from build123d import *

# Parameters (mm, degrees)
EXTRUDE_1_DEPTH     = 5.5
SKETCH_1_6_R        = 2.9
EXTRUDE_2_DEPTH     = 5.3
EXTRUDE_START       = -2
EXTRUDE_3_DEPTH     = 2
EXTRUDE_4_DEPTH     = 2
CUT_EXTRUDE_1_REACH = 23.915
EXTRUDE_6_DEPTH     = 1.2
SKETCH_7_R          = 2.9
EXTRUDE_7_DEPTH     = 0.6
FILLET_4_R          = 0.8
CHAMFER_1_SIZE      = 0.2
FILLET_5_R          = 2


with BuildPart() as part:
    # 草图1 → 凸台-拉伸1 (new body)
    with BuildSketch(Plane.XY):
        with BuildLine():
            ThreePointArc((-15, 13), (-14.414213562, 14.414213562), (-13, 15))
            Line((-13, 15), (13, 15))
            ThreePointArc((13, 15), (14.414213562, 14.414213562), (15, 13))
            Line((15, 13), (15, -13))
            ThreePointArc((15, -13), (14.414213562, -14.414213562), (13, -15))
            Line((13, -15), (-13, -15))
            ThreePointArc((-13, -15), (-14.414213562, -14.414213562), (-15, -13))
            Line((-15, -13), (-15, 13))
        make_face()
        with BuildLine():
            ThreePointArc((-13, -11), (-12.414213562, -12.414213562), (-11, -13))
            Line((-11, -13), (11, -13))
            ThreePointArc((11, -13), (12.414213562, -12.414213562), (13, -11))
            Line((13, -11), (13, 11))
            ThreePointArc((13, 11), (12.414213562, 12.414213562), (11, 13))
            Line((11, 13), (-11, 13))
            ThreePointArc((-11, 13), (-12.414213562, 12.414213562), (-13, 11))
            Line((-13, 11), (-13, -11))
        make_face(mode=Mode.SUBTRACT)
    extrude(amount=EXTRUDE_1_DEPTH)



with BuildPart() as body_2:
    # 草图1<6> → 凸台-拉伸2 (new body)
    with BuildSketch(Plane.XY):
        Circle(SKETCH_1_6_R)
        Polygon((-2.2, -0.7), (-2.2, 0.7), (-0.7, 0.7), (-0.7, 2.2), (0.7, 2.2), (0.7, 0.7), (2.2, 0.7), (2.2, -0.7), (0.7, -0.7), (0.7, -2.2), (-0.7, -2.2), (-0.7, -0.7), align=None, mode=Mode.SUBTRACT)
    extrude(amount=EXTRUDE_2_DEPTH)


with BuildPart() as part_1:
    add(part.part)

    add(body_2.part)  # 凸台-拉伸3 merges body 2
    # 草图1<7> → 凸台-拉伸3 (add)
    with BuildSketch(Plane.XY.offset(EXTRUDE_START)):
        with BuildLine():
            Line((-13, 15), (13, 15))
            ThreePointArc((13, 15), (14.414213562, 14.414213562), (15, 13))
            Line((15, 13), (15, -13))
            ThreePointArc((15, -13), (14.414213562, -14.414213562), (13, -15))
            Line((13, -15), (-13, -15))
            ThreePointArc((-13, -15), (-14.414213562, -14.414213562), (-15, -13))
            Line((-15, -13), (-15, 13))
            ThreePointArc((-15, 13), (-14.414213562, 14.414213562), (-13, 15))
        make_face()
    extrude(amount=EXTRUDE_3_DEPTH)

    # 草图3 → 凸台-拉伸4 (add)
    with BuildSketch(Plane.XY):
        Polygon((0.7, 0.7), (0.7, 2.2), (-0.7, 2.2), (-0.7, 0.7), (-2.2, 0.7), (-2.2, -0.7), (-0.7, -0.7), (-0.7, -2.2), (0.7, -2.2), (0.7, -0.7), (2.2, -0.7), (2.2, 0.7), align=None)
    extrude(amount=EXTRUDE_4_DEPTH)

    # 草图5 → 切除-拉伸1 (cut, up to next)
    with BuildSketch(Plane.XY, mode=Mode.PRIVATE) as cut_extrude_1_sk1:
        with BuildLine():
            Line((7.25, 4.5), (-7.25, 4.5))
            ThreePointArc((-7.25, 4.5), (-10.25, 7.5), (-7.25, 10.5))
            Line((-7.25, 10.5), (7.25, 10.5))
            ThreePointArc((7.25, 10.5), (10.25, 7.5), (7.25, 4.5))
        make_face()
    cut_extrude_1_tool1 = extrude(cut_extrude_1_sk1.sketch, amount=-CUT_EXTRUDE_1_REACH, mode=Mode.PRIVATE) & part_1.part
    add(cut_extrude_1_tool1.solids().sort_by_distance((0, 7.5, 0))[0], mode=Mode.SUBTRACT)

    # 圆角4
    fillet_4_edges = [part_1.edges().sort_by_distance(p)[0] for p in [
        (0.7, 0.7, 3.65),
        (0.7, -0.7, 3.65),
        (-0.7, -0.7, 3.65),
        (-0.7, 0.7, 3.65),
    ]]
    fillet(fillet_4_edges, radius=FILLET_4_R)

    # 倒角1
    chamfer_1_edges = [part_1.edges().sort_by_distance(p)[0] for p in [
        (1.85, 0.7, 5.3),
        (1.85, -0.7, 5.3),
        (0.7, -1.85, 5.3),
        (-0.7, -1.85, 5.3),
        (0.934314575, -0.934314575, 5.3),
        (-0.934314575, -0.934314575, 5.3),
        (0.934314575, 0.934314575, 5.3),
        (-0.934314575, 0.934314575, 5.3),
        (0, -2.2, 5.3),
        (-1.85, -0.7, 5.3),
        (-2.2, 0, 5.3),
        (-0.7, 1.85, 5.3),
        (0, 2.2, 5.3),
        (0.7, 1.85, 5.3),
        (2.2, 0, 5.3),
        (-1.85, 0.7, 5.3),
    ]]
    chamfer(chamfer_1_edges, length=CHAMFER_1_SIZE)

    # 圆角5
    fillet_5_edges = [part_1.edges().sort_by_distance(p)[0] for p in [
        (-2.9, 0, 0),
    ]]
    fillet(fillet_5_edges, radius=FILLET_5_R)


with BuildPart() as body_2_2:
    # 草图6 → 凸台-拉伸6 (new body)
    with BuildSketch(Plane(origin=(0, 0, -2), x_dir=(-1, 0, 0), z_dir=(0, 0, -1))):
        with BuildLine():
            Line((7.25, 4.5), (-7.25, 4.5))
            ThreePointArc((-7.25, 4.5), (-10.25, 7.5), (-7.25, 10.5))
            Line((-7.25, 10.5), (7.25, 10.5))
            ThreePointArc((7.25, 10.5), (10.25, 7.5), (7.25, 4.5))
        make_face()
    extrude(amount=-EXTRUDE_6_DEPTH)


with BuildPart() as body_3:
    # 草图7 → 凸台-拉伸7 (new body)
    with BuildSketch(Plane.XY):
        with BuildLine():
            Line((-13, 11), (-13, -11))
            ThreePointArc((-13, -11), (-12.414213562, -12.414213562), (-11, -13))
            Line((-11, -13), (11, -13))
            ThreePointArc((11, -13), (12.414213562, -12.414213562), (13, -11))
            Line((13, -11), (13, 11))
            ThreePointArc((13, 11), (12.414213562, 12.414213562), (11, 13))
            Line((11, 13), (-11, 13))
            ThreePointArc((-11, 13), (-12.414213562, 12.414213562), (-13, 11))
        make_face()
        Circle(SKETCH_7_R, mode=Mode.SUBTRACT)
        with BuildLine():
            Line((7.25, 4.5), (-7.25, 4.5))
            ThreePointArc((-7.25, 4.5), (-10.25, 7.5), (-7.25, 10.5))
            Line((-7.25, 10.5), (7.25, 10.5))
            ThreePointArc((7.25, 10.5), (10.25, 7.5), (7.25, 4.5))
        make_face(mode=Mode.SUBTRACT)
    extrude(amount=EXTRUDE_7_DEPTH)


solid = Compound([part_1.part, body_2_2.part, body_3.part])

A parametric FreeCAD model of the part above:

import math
import FreeCAD as App
import Part
import Sketcher
from FreeCAD import Vector


def edges_at(feature, points):
    """Names of the edges that pass closest to the given points."""
    edges = feature.Shape.Edges
    near = lambda p: min(range(len(edges)), key=lambda i: edges[i].distToShape(Part.Vertex(*p))[0])
    return sorted({f"Edge{near(p) + 1}" for p in points})


def add_polygon(sketch, points):
    """Adds a closed chain of lines whose ends are joined by coincident constraints."""
    first, n = sketch.GeometryCount, len(points)
    for a, b in zip(points, points[1:] + points[:1]):
        sketch.addGeometry(Part.LineSegment(App.Vector(*a, 0), App.Vector(*b, 0)), False)
    for i in range(n):
        sketch.addConstraint(Sketcher.Constraint("Coincident", first + i, 2, first + (i + 1) % n, 1))

doc = App.newDocument("Part")
params = doc.addObject("Spreadsheet::Sheet", "Params")
for row, (alias, value) in enumerate([
    ("sketch1_radius", "2 mm"),
    ("sketch1_width", "26 mm"),
    ("pad1_length", "5.5 mm"),
    ("sketch2_diameter", "5.8 mm"),
    ("sketch2_width", "1.5 mm"),
    ("sketch2_width2", "1.4 mm"),
    ("pad2_length", "5.3 mm"),
    ("sketch3_radius", "2 mm"),
    ("sketch3_width", "26 mm"),
    ("pad3_length", "2 mm"),
    ("sketch4_width", "1.4 mm"),
    ("sketch4_width2", "1.5 mm"),
    ("pad4_length", "2 mm"),
    ("sketch5_radius", "3 mm"),
    ("sketch5_width", "14.5 mm"),
    ("fillet_radius", "0.8 mm"),
    ("chamfer_size", "0.2 mm"),
    ("fillet2_radius", "2 mm"),
    ("sketch6_radius", "3 mm"),
    ("sketch6_width", "14.5 mm"),
    ("pad5_length", "1.2 mm"),
    ("sketch7_radius", "2 mm"),
    ("sketch7_radius2", "3 mm"),
    ("sketch7_diameter", "5.8 mm"),
    ("sketch7_width", "22 mm"),
    ("sketch7_width2", "14.5 mm"),
    ("pad6_length", "0.6 mm"),
], start=1):
    params.set(f"A{row}", alias)
    params.set(f"B{row}", "=" + value)
    params.setAlias(f"B{row}", alias)

body = doc.addObject("PartDesign::Body", "Body")

# Sketch on XY plane
sketch1 = doc.addObject("Sketcher::SketchObject", "Sketch")
body.addObject(sketch1)
sketch1.AttachmentSupport = (doc.XY_Plane, [""])
sketch1.MapMode = "FlatFace"
sketch1.addGeometry([
    Part.ArcOfCircle(Part.Circle(Vector(-13, 13, 0), Vector(0, 0, 1), 2), math.radians(90), math.radians(180)),  # 0
    Part.LineSegment(Vector(-15, 13, 0), Vector(-15, -13, 0)),  # 1
    Part.ArcOfCircle(Part.Circle(Vector(-13, -13, 0), Vector(0, 0, 1), 2), math.radians(-180), math.radians(-90)),  # 2
    Part.LineSegment(Vector(-13, -15, 0), Vector(13, -15, 0)),  # 3
    Part.ArcOfCircle(Part.Circle(Vector(13, -13, 0), Vector(0, 0, 1), 2), math.radians(-90), math.radians(0)),  # 4
    Part.LineSegment(Vector(15, -13, 0), Vector(15, 13, 0)),  # 5
    Part.ArcOfCircle(Part.Circle(Vector(13, 13, 0), Vector(0, 0, 1), 2), math.radians(0), math.radians(90)),  # 6
    Part.LineSegment(Vector(13, 15, 0), Vector(-13, 15, 0)),  # 7
    Part.LineSegment(Vector(-13, -11, 0), Vector(-13, 11, 0)),  # 8
    Part.ArcOfCircle(Part.Circle(Vector(-11, 11, 0), Vector(0, 0, 1), 2), math.radians(90), math.radians(180)),  # 9
    Part.LineSegment(Vector(-11, 13, 0), Vector(11, 13, 0)),  # 10
    Part.ArcOfCircle(Part.Circle(Vector(11, 11, 0), Vector(0, 0, 1), 2), math.radians(0), math.radians(90)),  # 11
    Part.LineSegment(Vector(13, 11, 0), Vector(13, -11, 0)),  # 12
    Part.ArcOfCircle(Part.Circle(Vector(11, -11, 0), Vector(0, 0, 1), 2), math.radians(-90), math.radians(0)),  # 13
    Part.LineSegment(Vector(11, -13, 0), Vector(-11, -13, 0)),  # 14
    Part.ArcOfCircle(Part.Circle(Vector(-11, -11, 0), Vector(0, 0, 1), 2), math.radians(-180), math.radians(-90)),  # 15
], False)
sketch1.addConstraint([
    Sketcher.Constraint("Tangent", 0, 2, 1, 1),
    Sketcher.Constraint("Tangent", 1, 2, 2, 1),
    Sketcher.Constraint("Tangent", 2, 2, 3, 1),
    Sketcher.Constraint("Tangent", 3, 2, 4, 1),
    Sketcher.Constraint("Tangent", 4, 2, 5, 1),
    Sketcher.Constraint("Tangent", 5, 2, 6, 1),
    Sketcher.Constraint("Tangent", 6, 2, 7, 1),
    Sketcher.Constraint("Tangent", 7, 2, 0, 1),
    Sketcher.Constraint("Tangent", 8, 2, 9, 2),
    Sketcher.Constraint("Tangent", 9, 1, 10, 1),
    Sketcher.Constraint("Tangent", 10, 2, 11, 2),
    Sketcher.Constraint("Tangent", 11, 1, 12, 1),
    Sketcher.Constraint("Tangent", 12, 2, 13, 2),
    Sketcher.Constraint("Tangent", 13, 1, 14, 1),
    Sketcher.Constraint("Tangent", 14, 2, 15, 2),
    Sketcher.Constraint("Tangent", 15, 1, 8, 1),
    Sketcher.Constraint("Vertical", 1),
    Sketcher.Constraint("Horizontal", 3),
    Sketcher.Constraint("Vertical", 5),
    Sketcher.Constraint("Horizontal", 7),
    Sketcher.Constraint("Vertical", 8),
    Sketcher.Constraint("Horizontal", 10),
    Sketcher.Constraint("Vertical", 12),
    Sketcher.Constraint("Horizontal", 14),
    Sketcher.Constraint("Equal", 0, 2),
    Sketcher.Constraint("Equal", 2, 4),
    Sketcher.Constraint("Equal", 4, 6),
    Sketcher.Constraint("Equal", 6, 9),
    Sketcher.Constraint("Equal", 9, 11),
    Sketcher.Constraint("Equal", 11, 13),
    Sketcher.Constraint("Equal", 13, 15),
    Sketcher.Constraint("Symmetric", 0, 3, 4, 3, -1, 1),
    Sketcher.Constraint("Symmetric", 9, 3, 13, 3, -1, 1),
    Sketcher.Constraint("Horizontal", 5, 2, 9, 1),
    Sketcher.Constraint("Vertical", 7, 2, 8, 2),
    Sketcher.Constraint("Equal", 7, 1),
    Sketcher.Constraint("Radius", 0, 2.0),
    Sketcher.Constraint("DistanceX", 3, 1, 3, 2, 26.0),
])
sketch1.setExpression("Constraints[36]", "Params.sketch1_radius")
sketch1.setExpression("Constraints[37]", "Params.sketch1_width")
pad1 = doc.addObject("PartDesign::Pad", "Pad")
body.addObject(pad1)
pad1.Profile = sketch1
pad1.setExpression("Length", "Params.pad1_length")
body2 = doc.addObject("PartDesign::Body", "Body001")

# Sketch on XY plane
sketch2 = doc.addObject("Sketcher::SketchObject", "Sketch001")
body2.addObject(sketch2)
sketch2.AttachmentSupport = (doc.getObject("XY_Plane001"), [""])
sketch2.MapMode = "FlatFace"
sketch2.addGeometry(Part.Circle(Vector(0, 0, 0), Vector(0, 0, 1), 2.9), False)  # 0
add_polygon(sketch2, [(-0.7, -0.7), (-2.2, -0.7), (-2.2, 0.7), (-0.7, 0.7), (-0.7, 2.2), (0.7, 2.2), (0.7, 0.7), (2.2, 0.7), (2.2, -0.7), (0.7, -0.7), (0.7, -2.2), (-0.7, -2.2)])  # lines 1-12
sketch2.addConstraint([
    Sketcher.Constraint("Horizontal", 1),
    Sketcher.Constraint("Vertical", 2),
    Sketcher.Constraint("Horizontal", 3),
    Sketcher.Constraint("Vertical", 4),
    Sketcher.Constraint("Horizontal", 5),
    Sketcher.Constraint("Vertical", 6),
    Sketcher.Constraint("Horizontal", 7),
    Sketcher.Constraint("Vertical", 8),
    Sketcher.Constraint("Horizontal", 9),
    Sketcher.Constraint("Vertical", 10),
    Sketcher.Constraint("Horizontal", 11),
    Sketcher.Constraint("Vertical", 12),
    Sketcher.Constraint("Coincident", 0, 3, -1, 1),
    Sketcher.Constraint("Symmetric", 1, 2, 7, 2, -1, 1),
    Sketcher.Constraint("Symmetric", 3, 2, 9, 2, -1, 1),
    Sketcher.Constraint("Symmetric", 5, 2, 11, 2, -1, 1),
    Sketcher.Constraint("Symmetric", 3, 2, 6, 2, -2),
    Sketcher.Constraint("Equal", 11, 2),
    Sketcher.Constraint("Equal", 9, 4),
    Sketcher.Constraint("Diameter", 0, 5.8),
    Sketcher.Constraint("DistanceX", 1, 2, 1, 1, 1.5),
    Sketcher.Constraint("DistanceX", 5, 1, 5, 2, 1.4),
])
sketch2.setExpression("Constraints[31]", "Params.sketch2_diameter")
sketch2.setExpression("Constraints[32]", "Params.sketch2_width")
sketch2.setExpression("Constraints[33]", "Params.sketch2_width2")
pad2 = doc.addObject("PartDesign::Pad", "Pad001")
body2.addObject(pad2)
pad2.Profile = sketch2
pad2.setExpression("Length", "Params.pad2_length")
body.AllowCompound = True
doc.recompute()

boolean = doc.addObject("PartDesign::Boolean", "Boolean")
body.addObject(boolean)
boolean.Type = "Fuse"
boolean.addObjects([body2])

# Sketch on XY plane
sketch3 = doc.addObject("Sketcher::SketchObject", "Sketch002")
body.addObject(sketch3)
sketch3.AttachmentSupport = (doc.XY_Plane, [""])
sketch3.MapMode = "FlatFace"
sketch3.AttachmentOffset = App.Placement(Vector(0, 0, -2), App.Rotation())
sketch3.addGeometry([
    Part.LineSegment(Vector(13, 15, 0), Vector(-13, 15, 0)),  # 0
    Part.ArcOfCircle(Part.Circle(Vector(-13, 13, 0), Vector(0, 0, 1), 2), math.radians(90), math.radians(180)),  # 1
    Part.LineSegment(Vector(-15, 13, 0), Vector(-15, -13, 0)),  # 2
    Part.ArcOfCircle(Part.Circle(Vector(-13, -13, 0), Vector(0, 0, 1), 2), math.radians(-180), math.radians(-90)),  # 3
    Part.LineSegment(Vector(-13, -15, 0), Vector(13, -15, 0)),  # 4
    Part.ArcOfCircle(Part.Circle(Vector(13, -13, 0), Vector(0, 0, 1), 2), math.radians(-90), math.radians(0)),  # 5
    Part.LineSegment(Vector(15, -13, 0), Vector(15, 13, 0)),  # 6
    Part.ArcOfCircle(Part.Circle(Vector(13, 13, 0), Vector(0, 0, 1), 2), math.radians(0), math.radians(90)),  # 7
], False)
sketch3.addConstraint([
    Sketcher.Constraint("Tangent", 0, 2, 1, 1),
    Sketcher.Constraint("Tangent", 1, 2, 2, 1),
    Sketcher.Constraint("Tangent", 2, 2, 3, 1),
    Sketcher.Constraint("Tangent", 3, 2, 4, 1),
    Sketcher.Constraint("Tangent", 4, 2, 5, 1),
    Sketcher.Constraint("Tangent", 5, 2, 6, 1),
    Sketcher.Constraint("Tangent", 6, 2, 7, 1),
    Sketcher.Constraint("Tangent", 7, 2, 0, 1),
    Sketcher.Constraint("Horizontal", 0),
    Sketcher.Constraint("Vertical", 2),
    Sketcher.Constraint("Horizontal", 4),
    Sketcher.Constraint("Vertical", 6),
    Sketcher.Constraint("Equal", 1, 3),
    Sketcher.Constraint("Equal", 3, 5),
    Sketcher.Constraint("Equal", 5, 7),
    Sketcher.Constraint("Symmetric", 1, 3, 5, 3, -1, 1),
    Sketcher.Constraint("Equal", 4, 2),
    Sketcher.Constraint("Radius", 1, 2.0),
    Sketcher.Constraint("DistanceX", 0, 2, 0, 1, 26.0),
])
sketch3.setExpression("Constraints[17]", "Params.sketch3_radius")
sketch3.setExpression("Constraints[18]", "Params.sketch3_width")
pad3 = doc.addObject("PartDesign::Pad", "Pad002")
body.addObject(pad3)
pad3.Profile = sketch3
pad3.setExpression("Length", "Params.pad3_length")

# Sketch on XY plane
sketch4 = doc.addObject("Sketcher::SketchObject", "Sketch003")
body.addObject(sketch4)
sketch4.AttachmentSupport = (doc.XY_Plane, [""])
sketch4.MapMode = "FlatFace"
add_polygon(sketch4, [(0.7, 0.7), (0.7, 2.2), (-0.7, 2.2), (-0.7, 0.7), (-2.2, 0.7), (-2.2, -0.7), (-0.7, -0.7), (-0.7, -2.2), (0.7, -2.2), (0.7, -0.7), (2.2, -0.7), (2.2, 0.7)])  # lines 0-11
sketch4.addConstraint([
    Sketcher.Constraint("Vertical", 0),
    Sketcher.Constraint("Horizontal", 1),
    Sketcher.Constraint("Vertical", 2),
    Sketcher.Constraint("Horizontal", 3),
    Sketcher.Constraint("Vertical", 4),
    Sketcher.Constraint("Horizontal", 5),
    Sketcher.Constraint("Vertical", 6),
    Sketcher.Constraint("Horizontal", 7),
    Sketcher.Constraint("Vertical", 8),
    Sketcher.Constraint("Horizontal", 9),
    Sketcher.Constraint("Vertical", 10),
    Sketcher.Constraint("Horizontal", 11),
    Sketcher.Constraint("Symmetric", 0, 2, 6, 2, -1, 1),
    Sketcher.Constraint("Symmetric", 2, 2, 8, 2, -1, 1),
    Sketcher.Constraint("Symmetric", 4, 2, 10, 2, -1, 1),
    Sketcher.Constraint("Symmetric", 5, 2, 8, 2, -2),
    Sketcher.Constraint("Equal", 11, 0),
    Sketcher.Constraint("Equal", 7, 4),
    Sketcher.Constraint("DistanceX", 1, 2, 1, 1, 1.4),
    Sketcher.Constraint("DistanceX", 3, 2, 3, 1, 1.5),
])
sketch4.setExpression("Constraints[30]", "Params.sketch4_width")
sketch4.setExpression("Constraints[31]", "Params.sketch4_width2")
pad4 = doc.addObject("PartDesign::Pad", "Pad003")
body.addObject(pad4)
pad4.Profile = sketch4
pad4.setExpression("Length", "Params.pad4_length")

# Sketch on XY plane
sketch5 = doc.addObject("Sketcher::SketchObject", "Sketch004")
body.addObject(sketch5)
sketch5.AttachmentSupport = (doc.XY_Plane, [""])
sketch5.MapMode = "FlatFace"
sketch5.addGeometry([
    Part.LineSegment(Vector(-7.2, 4.5, 0), Vector(7.2, 4.5, 0)),
    Part.ArcOfCircle(Part.Circle(Vector(7.2, 7.5, 0), Vector(0, 0, 1), 3), math.radians(-90), math.radians(90)),
    Part.LineSegment(Vector(7.2, 10.5, 0), Vector(-7.2, 10.5, 0)),
    Part.ArcOfCircle(Part.Circle(Vector(-7.2, 7.5, 0), Vector(0, 0, 1), 3), math.radians(90), math.radians(270)),
], False)
sketch5.addConstraint([
    Sketcher.Constraint("Tangent", 0, 2, 1, 1),
    Sketcher.Constraint("Tangent", 1, 2, 2, 1),
    Sketcher.Constraint("Tangent", 2, 2, 3, 1),
    Sketcher.Constraint("Tangent", 3, 2, 0, 1),
    Sketcher.Constraint("Horizontal", 0),
    Sketcher.Constraint("Horizontal", 2),
    Sketcher.Constraint("Radius", 1, 3.0),
    Sketcher.Constraint("DistanceX", 0, 1, 0, 2, 14.5),
    Sketcher.Constraint("DistanceY", -1, 1, 1, 3, 7.5),
    Sketcher.Constraint("DistanceX", -1, 1, 1, 3, 7.25),
])
sketch5.setExpression("Constraints[6]", "Params.sketch5_radius")
sketch5.setExpression("Constraints[7]", "Params.sketch5_width")
pocket1 = doc.addObject("PartDesign::Pocket", "Pocket")
body.addObject(pocket1)
pocket1.Profile = sketch5
pocket1.Type = "UpToFirst"
doc.recompute()

fillet = doc.addObject("PartDesign::Fillet", "Fillet")
body.addObject(fillet)
fillet.Base = (pocket1, edges_at(pocket1, [
    (0.7, 0.7, 3.65),
    (0.7, -0.7, 3.65),
    (-0.7, -0.7, 3.65),
    (-0.7, 0.7, 3.65),
]))
fillet.setExpression("Radius", "Params.fillet_radius")
doc.recompute()

chamfer = doc.addObject("PartDesign::Chamfer", "Chamfer")
body.addObject(chamfer)
chamfer.Base = (fillet, edges_at(fillet, [
    (1.85, 0.7, 5.3),
    (1.85, -0.7, 5.3),
    (0.7, -1.85, 5.3),
    (-0.7, -1.85, 5.3),
    (0.934, -0.934, 5.3),
    (-0.934, -0.934, 5.3),
    (0.934, 0.934, 5.3),
    (-0.934, 0.934, 5.3),
    (0, -2.2, 5.3),
    (-1.85, -0.7, 5.3),
    (-2.2, 0, 5.3),
    (-0.7, 1.85, 5.3),
    (0, 2.2, 5.3),
    (0.7, 1.85, 5.3),
    (2.2, 0, 5.3),
    (-1.85, 0.7, 5.3),
]))
chamfer.setExpression("Size", "Params.chamfer_size")
doc.recompute()

fillet2 = doc.addObject("PartDesign::Fillet", "Fillet001")
body.addObject(fillet2)
fillet2.Base = (chamfer, edges_at(chamfer, [(-2.9, 0, 0)]))
fillet2.setExpression("Radius", "Params.fillet2_radius")
body3 = doc.addObject("PartDesign::Body", "Body002")

# Sketch on XY plane
sketch6 = doc.addObject("Sketcher::SketchObject", "Sketch005")
body3.addObject(sketch6)
sketch6.AttachmentSupport = (doc.getObject("XY_Plane002"), [""])
sketch6.MapMode = "FlatFace"
sketch6.AttachmentOffset = App.Placement(Vector(0, 0, -2), App.Rotation())
sketch6.addGeometry([
    Part.LineSegment(Vector(7.2, 4.5, 0), Vector(-7.2, 4.5, 0)),
    Part.ArcOfCircle(Part.Circle(Vector(-7.2, 7.5, 0), Vector(0, 0, 1), 3), math.radians(90), math.radians(270)),
    Part.LineSegment(Vector(-7.2, 10.5, 0), Vector(7.2, 10.5, 0)),
    Part.ArcOfCircle(Part.Circle(Vector(7.2, 7.5, 0), Vector(0, 0, 1), 3), math.radians(-90), math.radians(90)),
], False)
sketch6.addConstraint([
    Sketcher.Constraint("Tangent", 0, 2, 1, 2),
    Sketcher.Constraint("Tangent", 1, 1, 2, 1),
    Sketcher.Constraint("Tangent", 2, 2, 3, 2),
    Sketcher.Constraint("Tangent", 3, 1, 0, 1),
    Sketcher.Constraint("Horizontal", 0),
    Sketcher.Constraint("Horizontal", 2),
    Sketcher.Constraint("Radius", 1, 3.0),
    Sketcher.Constraint("DistanceX", 0, 2, 0, 1, 14.5),
    Sketcher.Constraint("DistanceY", -1, 1, 1, 3, 7.5),
    Sketcher.Constraint("DistanceX", 1, 3, -1, 1, 7.25),
])
sketch6.setExpression("Constraints[6]", "Params.sketch6_radius")
sketch6.setExpression("Constraints[7]", "Params.sketch6_width")
pad5 = doc.addObject("PartDesign::Pad", "Pad004")
body3.addObject(pad5)
pad5.Profile = sketch6
pad5.setExpression("Length", "Params.pad5_length")
body4 = doc.addObject("PartDesign::Body", "Body003")

# Sketch on XY plane
sketch7 = doc.addObject("Sketcher::SketchObject", "Sketch006")
body4.addObject(sketch7)
sketch7.AttachmentSupport = (doc.getObject("XY_Plane003"), [""])
sketch7.MapMode = "FlatFace"
sketch7.addGeometry([
    Part.LineSegment(Vector(-13, 11, 0), Vector(-13, -11, 0)),  # 0
    Part.ArcOfCircle(Part.Circle(Vector(-11, -11, 0), Vector(0, 0, 1), 2), math.radians(-180), math.radians(-90)),  # 1
    Part.LineSegment(Vector(-11, -13, 0), Vector(11, -13, 0)),  # 2
    Part.ArcOfCircle(Part.Circle(Vector(11, -11, 0), Vector(0, 0, 1), 2), math.radians(-90), math.radians(0)),  # 3
    Part.LineSegment(Vector(13, -11, 0), Vector(13, 11, 0)),  # 4
    Part.ArcOfCircle(Part.Circle(Vector(11, 11, 0), Vector(0, 0, 1), 2), math.radians(0), math.radians(90)),  # 5
    Part.LineSegment(Vector(11, 13, 0), Vector(-11, 13, 0)),  # 6
    Part.ArcOfCircle(Part.Circle(Vector(-11, 11, 0), Vector(0, 0, 1), 2), math.radians(90), math.radians(180)),  # 7
    Part.Circle(Vector(0, 0, 0), Vector(0, 0, 1), 2.9),  # 8
    Part.ArcOfCircle(Part.Circle(Vector(7.2, 7.5, 0), Vector(0, 0, 1), 3), math.radians(-90), math.radians(90)),  # 9
    Part.LineSegment(Vector(7.2, 4.5, 0), Vector(-7.2, 4.5, 0)),  # 10
    Part.ArcOfCircle(Part.Circle(Vector(-7.2, 7.5, 0), Vector(0, 0, 1), 3), math.radians(90), math.radians(270)),  # 11
    Part.LineSegment(Vector(-7.2, 10.5, 0), Vector(7.2, 10.5, 0)),  # 12
], False)
sketch7.addConstraint([
    Sketcher.Constraint("Tangent", 0, 2, 1, 1),
    Sketcher.Constraint("Tangent", 1, 2, 2, 1),
    Sketcher.Constraint("Tangent", 2, 2, 3, 1),
    Sketcher.Constraint("Tangent", 3, 2, 4, 1),
    Sketcher.Constraint("Tangent", 4, 2, 5, 1),
    Sketcher.Constraint("Tangent", 5, 2, 6, 1),
    Sketcher.Constraint("Tangent", 6, 2, 7, 1),
    Sketcher.Constraint("Tangent", 7, 2, 0, 1),
    Sketcher.Constraint("Tangent", 9, 1, 10, 1),
    Sketcher.Constraint("Tangent", 10, 2, 11, 2),
    Sketcher.Constraint("Tangent", 11, 1, 12, 1),
    Sketcher.Constraint("Tangent", 12, 2, 9, 2),
    Sketcher.Constraint("Vertical", 0),
    Sketcher.Constraint("Horizontal", 2),
    Sketcher.Constraint("Vertical", 4),
    Sketcher.Constraint("Horizontal", 6),
    Sketcher.Constraint("Horizontal", 10),
    Sketcher.Constraint("Horizontal", 12),
    Sketcher.Constraint("Coincident", 8, 3, -1, 1),
    Sketcher.Constraint("Equal", 1, 3),
    Sketcher.Constraint("Equal", 3, 5),
    Sketcher.Constraint("Equal", 5, 7),
    Sketcher.Constraint("Symmetric", 1, 3, 5, 3, -1, 1),
    Sketcher.Constraint("Equal", 6, 0),
    Sketcher.Constraint("Radius", 1, 2.0),
    Sketcher.Constraint("Radius", 9, 3.0),
    Sketcher.Constraint("Diameter", 8, 5.8),
    Sketcher.Constraint("DistanceX", 2, 1, 2, 2, 22.0),
    Sketcher.Constraint("DistanceX", 10, 2, 10, 1, 14.5),
    Sketcher.Constraint("DistanceY", -1, 1, 9, 3, 7.5),
    Sketcher.Constraint("DistanceX", -1, 1, 9, 3, 7.25),
])
sketch7.setExpression("Constraints[24]", "Params.sketch7_radius")
sketch7.setExpression("Constraints[25]", "Params.sketch7_radius2")
sketch7.setExpression("Constraints[26]", "Params.sketch7_diameter")
sketch7.setExpression("Constraints[27]", "Params.sketch7_width")
sketch7.setExpression("Constraints[28]", "Params.sketch7_width2")
pad6 = doc.addObject("PartDesign::Pad", "Pad005")
body4.addObject(pad6)
pad6.Profile = sketch7
pad6.setExpression("Length", "Params.pad6_length")

doc.recompute()
